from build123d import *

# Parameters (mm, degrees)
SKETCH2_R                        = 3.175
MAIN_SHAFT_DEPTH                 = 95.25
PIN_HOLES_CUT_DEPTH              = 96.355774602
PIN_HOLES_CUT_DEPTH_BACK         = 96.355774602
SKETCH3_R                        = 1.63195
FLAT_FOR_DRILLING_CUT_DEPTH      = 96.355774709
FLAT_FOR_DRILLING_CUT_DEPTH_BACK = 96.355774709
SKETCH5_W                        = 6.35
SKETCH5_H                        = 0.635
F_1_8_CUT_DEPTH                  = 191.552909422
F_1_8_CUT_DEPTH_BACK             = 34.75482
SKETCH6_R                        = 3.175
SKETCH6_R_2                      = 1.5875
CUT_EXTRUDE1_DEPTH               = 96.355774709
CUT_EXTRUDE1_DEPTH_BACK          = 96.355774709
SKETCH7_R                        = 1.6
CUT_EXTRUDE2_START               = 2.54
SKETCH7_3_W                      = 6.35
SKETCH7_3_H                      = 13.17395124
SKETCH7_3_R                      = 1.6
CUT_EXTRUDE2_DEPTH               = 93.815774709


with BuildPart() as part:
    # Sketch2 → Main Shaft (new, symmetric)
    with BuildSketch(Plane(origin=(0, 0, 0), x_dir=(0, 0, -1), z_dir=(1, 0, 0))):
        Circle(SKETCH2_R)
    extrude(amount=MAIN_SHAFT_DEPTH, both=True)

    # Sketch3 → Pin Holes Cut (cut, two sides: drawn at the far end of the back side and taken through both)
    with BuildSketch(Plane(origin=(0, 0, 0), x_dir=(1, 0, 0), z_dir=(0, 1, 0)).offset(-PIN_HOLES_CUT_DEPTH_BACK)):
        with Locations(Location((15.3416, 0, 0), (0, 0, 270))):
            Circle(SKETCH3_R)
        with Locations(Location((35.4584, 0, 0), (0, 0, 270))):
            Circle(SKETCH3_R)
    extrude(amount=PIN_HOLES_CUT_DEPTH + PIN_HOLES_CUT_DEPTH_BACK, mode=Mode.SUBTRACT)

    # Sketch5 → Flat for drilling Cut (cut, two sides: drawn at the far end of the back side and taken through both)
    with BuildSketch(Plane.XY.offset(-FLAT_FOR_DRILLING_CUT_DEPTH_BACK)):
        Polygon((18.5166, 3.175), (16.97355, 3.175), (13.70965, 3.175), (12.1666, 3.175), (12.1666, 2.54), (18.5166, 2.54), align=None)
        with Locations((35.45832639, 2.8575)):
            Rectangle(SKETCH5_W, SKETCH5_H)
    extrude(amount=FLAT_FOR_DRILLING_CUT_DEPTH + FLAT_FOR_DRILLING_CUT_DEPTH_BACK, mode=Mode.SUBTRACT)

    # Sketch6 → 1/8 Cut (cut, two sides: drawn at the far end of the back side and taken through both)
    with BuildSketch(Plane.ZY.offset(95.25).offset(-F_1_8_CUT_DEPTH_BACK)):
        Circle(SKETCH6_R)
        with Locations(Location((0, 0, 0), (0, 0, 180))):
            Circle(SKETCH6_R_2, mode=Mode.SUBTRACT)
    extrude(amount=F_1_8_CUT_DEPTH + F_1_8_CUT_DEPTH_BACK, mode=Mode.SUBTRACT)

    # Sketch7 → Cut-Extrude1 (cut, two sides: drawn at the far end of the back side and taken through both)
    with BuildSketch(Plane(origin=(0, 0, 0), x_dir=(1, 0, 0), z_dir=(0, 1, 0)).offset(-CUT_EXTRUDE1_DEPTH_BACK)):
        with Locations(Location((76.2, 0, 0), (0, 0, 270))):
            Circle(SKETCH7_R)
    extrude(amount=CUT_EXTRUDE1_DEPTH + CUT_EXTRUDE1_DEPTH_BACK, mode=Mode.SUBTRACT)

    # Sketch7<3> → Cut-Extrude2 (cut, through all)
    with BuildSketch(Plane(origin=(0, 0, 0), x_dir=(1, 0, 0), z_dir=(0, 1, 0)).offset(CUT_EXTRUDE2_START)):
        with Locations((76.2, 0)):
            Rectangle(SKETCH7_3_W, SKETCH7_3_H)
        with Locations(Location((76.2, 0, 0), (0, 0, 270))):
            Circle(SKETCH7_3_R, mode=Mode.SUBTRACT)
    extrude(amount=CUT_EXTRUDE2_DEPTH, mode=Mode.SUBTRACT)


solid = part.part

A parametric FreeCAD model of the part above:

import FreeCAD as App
import Part
import Sketcher
from FreeCAD import Vector
Q = App.Units.Quantity

doc = App.newDocument("Part")
body = doc.addObject("PartDesign::Body", "Body")

# Sketch on YZ plane
sketch1 = doc.addObject("Sketcher::SketchObject", "Sketch")
body.addObject(sketch1)
sketch1.AttachmentSupport = (doc.YZ_Plane, [""])
sketch1.MapMode = "FlatFace"
sketch1.addGeometry(Part.Circle(Vector(0, 0, 0), Vector(0, 0, 1), 3.175), False)
sketch1.addConstraint(Sketcher.Constraint("Coincident", 0, 3, -1, 1))
sketch1.addConstraint(Sketcher.Constraint("Diameter", 0, Q("0.25 in")))
pad1 = doc.addObject("PartDesign::Pad", "Pad")
body.addObject(pad1)
pad1.Profile = sketch1
pad1.Length = Q("7.5 in")
pad1.Midplane = True

# Sketch on XZ plane
sketch2 = doc.addObject("Sketcher::SketchObject", "Sketch001")
body.addObject(sketch2)
sketch2.AttachmentSupport = (doc.XZ_Plane, [""])
sketch2.MapMode = "FlatFace"
sketch2.addGeometry(Part.Circle(Vector(15.3416, 0, 0), Vector(0, 0, 1), 1.63195), False)
sketch2.addGeometry(Part.Circle(Vector(35.4584, 0, 0), Vector(0, 0, 1), 1.63195), False)
sketch2.addConstraint(Sketcher.Constraint("Equal", 0, 1))
sketch2.addConstraint(Sketcher.Constraint("PointOnObject", 0, 3, -1))
sketch2.addConstraint(Sketcher.Constraint("PointOnObject", 1, 3, -1))
sketch2.addConstraint(Sketcher.Constraint("Diameter", 0, Q("0.1285 in")))
sketch2.addConstraint(Sketcher.Constraint("DistanceX", -1, 1, 0, 3, Q("0.604 in")))
sketch2.addConstraint(Sketcher.Constraint("DistanceX", -1, 1, 1, 3, Q("1.396 in")))
pocket1 = doc.addObject("PartDesign::Pocket", "Pocket")
body.addObject(pocket1)
pocket1.Profile = sketch2
pocket1.Type = "ThroughAll"
pocket1.Midplane = True

# Sketch on XY plane
sketch3 = doc.addObject("Sketcher::SketchObject", "Sketch002")
body.addObject(sketch3)
sketch3.AttachmentSupport = (doc.XY_Plane, [""])
sketch3.MapMode = "FlatFace"
sketch3.addGeometry(Part.LineSegment(Vector(18.5166, 3.175, 0), Vector(12.1666, 3.175, 0)), False)
sketch3.addGeometry(Part.LineSegment(Vector(12.1666, 3.175, 0), Vector(12.1666, 2.54, 0)), False)
sketch3.addGeometry(Part.LineSegment(Vector(12.1666, 2.54, 0), Vector(18.5166, 2.54, 0)), False)
sketch3.addGeometry(Part.LineSegment(Vector(18.5166, 2.54, 0), Vector(18.5166, 3.175, 0)), False)
sketch3.addGeometry(Part.LineSegment(Vector(32.283326, 3.175, 0), Vector(32.283326, 2.54, 0)), False)
sketch3.addGeometry(Part.LineSegment(Vector(32.283326, 2.54, 0), Vector(38.633326, 2.54, 0)), False)
sketch3.addGeometry(Part.LineSegment(Vector(38.633326, 2.54, 0), Vector(38.633326, 3.175, 0)), False)
sketch3.addGeometry(Part.LineSegment(Vector(38.633326, 3.175, 0), Vector(32.283326, 3.175, 0)), False)
sketch3.addConstraint(Sketcher.Constraint("Coincident", 0, 2, 1, 1))
sketch3.addConstraint(Sketcher.Constraint("Coincident", 1, 2, 2, 1))
sketch3.addConstraint(Sketcher.Constraint("Coincident", 2, 2, 3, 1))
sketch3.addConstraint(Sketcher.Constraint("Coincident", 3, 2, 0, 1))
sketch3.addConstraint(Sketcher.Constraint("Coincident", 4, 2, 5, 1))
sketch3.addConstraint(Sketcher.Constraint("Coincident", 5, 2, 6, 1))
sketch3.addConstraint(Sketcher.Constraint("Coincident", 6, 2, 7, 1))
sketch3.addConstraint(Sketcher.Constraint("Coincident", 7, 2, 4, 1))
sketch3.addConstraint(Sketcher.Constraint("Horizontal", 0))
sketch3.addConstraint(Sketcher.Constraint("Vertical", 1))
sketch3.addConstraint(Sketcher.Constraint("Horizontal", 2))
sketch3.addConstraint(Sketcher.Constraint("Vertical", 3))
sketch3.addConstraint(Sketcher.Constraint("Vertical", 4))
sketch3.addConstraint(Sketcher.Constraint("Horizontal", 5))
sketch3.addConstraint(Sketcher.Constraint("Vertical", 6))
sketch3.addConstraint(Sketcher.Constraint("Horizontal", 7))
sketch3.addConstraint(Sketcher.Constraint("Horizontal", 2, 2, 4, 2))
sketch3.addConstraint(Sketcher.Constraint("Horizontal", 3, 2, 6, 2))
sketch3.addConstraint(Sketcher.Constraint("Equal", 2, 5))
sketch3.addConstraint(Sketcher.Constraint("DistanceX", 0, 2, 0, 1, Q("0.25 in")))
sketch3.addConstraint(Sketcher.Constraint("DistanceY", -1, 1, 1, 2, Q("0.1 in")))
sketch3.addConstraint(Sketcher.Constraint("DistanceY", 1, 2, 1, 1, Q("0.025 in")))
sketch3.addConstraint(Sketcher.Constraint("DistanceX", -1, 1, 0, 2, Q("0.479 in")))
sketch3.addConstraint(Sketcher.Constraint("DistanceX", -1, 1, 4, 2, Q("32.283326 mm")))
pocket2 = doc.addObject("PartDesign::Pocket", "Pocket001")
body.addObject(pocket2)
pocket2.Profile = sketch3
pocket2.Type = "ThroughAll"
pocket2.Midplane = True

# Sketch on YZ plane
sketch4 = doc.addObject("Sketcher::SketchObject", "Sketch003")
body.addObject(sketch4)
sketch4.AttachmentSupport = (doc.YZ_Plane, [""])
sketch4.MapMode = "FlatFace"
sketch4.AttachmentOffset = App.Placement(Vector(0, 0, -3.75 * 25.4), App.Rotation())
sketch4.addGeometry(Part.Circle(Vector(0, 0, 0), Vector(0, 0, 1), 3.175), False)
sketch4.addGeometry(Part.Circle(Vector(0, 0, 0), Vector(0, 0, 1), 1.5875), False)
sketch4.addConstraint(Sketcher.Constraint("Coincident", 0, 3, -1, 1))
sketch4.addConstraint(Sketcher.Constraint("Coincident", 1, 3, -1, 1))
sketch4.addConstraint(Sketcher.Constraint("Diameter", 0, Q("0.25 in")))
sketch4.addConstraint(Sketcher.Constraint("Diameter", 1, Q("0.125 in")))
pocket3 = doc.addObject("PartDesign::Pocket", "Pocket002")
body.addObject(pocket3)
pocket3.Profile = sketch4
pocket3.Type = "TwoLengths"
pocket3.Length = 191.552909
pocket3.Length2 = Q("1.3683 in")

# Sketch on XZ plane
sketch5 = doc.addObject("Sketcher::SketchObject", "Sketch004")
body.addObject(sketch5)
sketch5.AttachmentSupport = (doc.XZ_Plane, [""])
sketch5.MapMode = "FlatFace"
sketch5.addGeometry(Part.Circle(Vector(76.2, 0, 0), Vector(0, 0, 1), 1.6), False)
sketch5.addConstraint(Sketcher.Constraint("PointOnObject", 0, 3, -1))
sketch5.addConstraint(Sketcher.Constraint("DistanceX", -1, 1, 0, 3, Q("3 in")))
sketch5.addConstraint(Sketcher.Constraint("Diameter", 0, Q("3.2 mm")))
pocket4 = doc.addObject("PartDesign::Pocket", "Pocket003")
body.addObject(pocket4)
pocket4.Profile = sketch5
pocket4.Type = "ThroughAll"
pocket4.Midplane = True

# Sketch on XZ plane
sketch6 = doc.addObject("Sketcher::SketchObject", "Sketch005")
body.addObject(sketch6)
sketch6.AttachmentSupport = (doc.XZ_Plane, [""])
sketch6.MapMode = "FlatFace"
sketch6.AttachmentOffset = App.Placement(Vector(0, 0, -0.1 * 25.4), App.Rotation())
sketch6.addGeometry(Part.LineSegment(Vector(73.025, -6.586976, 0), Vector(73.025, 6.586976, 0)), False)
sketch6.addGeometry(Part.LineSegment(Vector(73.025, 6.586976, 0), Vector(79.375, 6.586976, 0)), False)
sketch6.addGeometry(Part.LineSegment(Vector(79.375, 6.586976, 0), Vector(79.375, -6.586976, 0)), False)
sketch6.addGeometry(Part.LineSegment(Vector(79.375, -6.586976, 0), Vector(73.025, -6.586976, 0)), False)
sketch6.addGeometry(Part.Circle(Vector(76.2, 0, 0), Vector(0, 0, 1), 1.6), False)
sketch6.addConstraint(Sketcher.Constraint("Coincident", 0, 2, 1, 1))
sketch6.addConstraint(Sketcher.Constraint("Coincident", 1, 2, 2, 1))
sketch6.addConstraint(Sketcher.Constraint("Coincident", 2, 2, 3, 1))
sketch6.addConstraint(Sketcher.Constraint("Coincident", 3, 2, 0, 1))
sketch6.addConstraint(Sketcher.Constraint("Vertical", 0))
sketch6.addConstraint(Sketcher.Constraint("Horizontal", 1))
sketch6.addConstraint(Sketcher.Constraint("Vertical", 2))
sketch6.addConstraint(Sketcher.Constraint("Horizontal", 3))
sketch6.addConstraint(Sketcher.Constraint("PointOnObject", 4, 3, -1))
sketch6.addConstraint(Sketcher.Constraint("DistanceX", -1, 1, 4, 3, Q("3 in")))
sketch6.addConstraint(Sketcher.Constraint("DistanceX", 1, 1, 1, 2, Q("0.25 in")))
sketch6.addConstraint(Sketcher.Constraint("Diameter", 4, Q("3.2 mm")))
sketch6.addConstraint(Sketcher.Constraint("DistanceX", -1, 1, 0, 2, Q("2.875 in")))
sketch6.addConstraint(Sketcher.Constraint("DistanceY", 0, 1, 0, 2, Q("13.173951 mm")))
sketch6.addConstraint(Sketcher.Constraint("DistanceY", -1, 1, 0, 2, Q("6.586976 mm")))
pocket5 = doc.addObject("PartDesign::Pocket", "Pocket004")
body.addObject(pocket5)
pocket5.Profile = sketch6
pocket5.Type = "ThroughAll"

doc.recompute()
